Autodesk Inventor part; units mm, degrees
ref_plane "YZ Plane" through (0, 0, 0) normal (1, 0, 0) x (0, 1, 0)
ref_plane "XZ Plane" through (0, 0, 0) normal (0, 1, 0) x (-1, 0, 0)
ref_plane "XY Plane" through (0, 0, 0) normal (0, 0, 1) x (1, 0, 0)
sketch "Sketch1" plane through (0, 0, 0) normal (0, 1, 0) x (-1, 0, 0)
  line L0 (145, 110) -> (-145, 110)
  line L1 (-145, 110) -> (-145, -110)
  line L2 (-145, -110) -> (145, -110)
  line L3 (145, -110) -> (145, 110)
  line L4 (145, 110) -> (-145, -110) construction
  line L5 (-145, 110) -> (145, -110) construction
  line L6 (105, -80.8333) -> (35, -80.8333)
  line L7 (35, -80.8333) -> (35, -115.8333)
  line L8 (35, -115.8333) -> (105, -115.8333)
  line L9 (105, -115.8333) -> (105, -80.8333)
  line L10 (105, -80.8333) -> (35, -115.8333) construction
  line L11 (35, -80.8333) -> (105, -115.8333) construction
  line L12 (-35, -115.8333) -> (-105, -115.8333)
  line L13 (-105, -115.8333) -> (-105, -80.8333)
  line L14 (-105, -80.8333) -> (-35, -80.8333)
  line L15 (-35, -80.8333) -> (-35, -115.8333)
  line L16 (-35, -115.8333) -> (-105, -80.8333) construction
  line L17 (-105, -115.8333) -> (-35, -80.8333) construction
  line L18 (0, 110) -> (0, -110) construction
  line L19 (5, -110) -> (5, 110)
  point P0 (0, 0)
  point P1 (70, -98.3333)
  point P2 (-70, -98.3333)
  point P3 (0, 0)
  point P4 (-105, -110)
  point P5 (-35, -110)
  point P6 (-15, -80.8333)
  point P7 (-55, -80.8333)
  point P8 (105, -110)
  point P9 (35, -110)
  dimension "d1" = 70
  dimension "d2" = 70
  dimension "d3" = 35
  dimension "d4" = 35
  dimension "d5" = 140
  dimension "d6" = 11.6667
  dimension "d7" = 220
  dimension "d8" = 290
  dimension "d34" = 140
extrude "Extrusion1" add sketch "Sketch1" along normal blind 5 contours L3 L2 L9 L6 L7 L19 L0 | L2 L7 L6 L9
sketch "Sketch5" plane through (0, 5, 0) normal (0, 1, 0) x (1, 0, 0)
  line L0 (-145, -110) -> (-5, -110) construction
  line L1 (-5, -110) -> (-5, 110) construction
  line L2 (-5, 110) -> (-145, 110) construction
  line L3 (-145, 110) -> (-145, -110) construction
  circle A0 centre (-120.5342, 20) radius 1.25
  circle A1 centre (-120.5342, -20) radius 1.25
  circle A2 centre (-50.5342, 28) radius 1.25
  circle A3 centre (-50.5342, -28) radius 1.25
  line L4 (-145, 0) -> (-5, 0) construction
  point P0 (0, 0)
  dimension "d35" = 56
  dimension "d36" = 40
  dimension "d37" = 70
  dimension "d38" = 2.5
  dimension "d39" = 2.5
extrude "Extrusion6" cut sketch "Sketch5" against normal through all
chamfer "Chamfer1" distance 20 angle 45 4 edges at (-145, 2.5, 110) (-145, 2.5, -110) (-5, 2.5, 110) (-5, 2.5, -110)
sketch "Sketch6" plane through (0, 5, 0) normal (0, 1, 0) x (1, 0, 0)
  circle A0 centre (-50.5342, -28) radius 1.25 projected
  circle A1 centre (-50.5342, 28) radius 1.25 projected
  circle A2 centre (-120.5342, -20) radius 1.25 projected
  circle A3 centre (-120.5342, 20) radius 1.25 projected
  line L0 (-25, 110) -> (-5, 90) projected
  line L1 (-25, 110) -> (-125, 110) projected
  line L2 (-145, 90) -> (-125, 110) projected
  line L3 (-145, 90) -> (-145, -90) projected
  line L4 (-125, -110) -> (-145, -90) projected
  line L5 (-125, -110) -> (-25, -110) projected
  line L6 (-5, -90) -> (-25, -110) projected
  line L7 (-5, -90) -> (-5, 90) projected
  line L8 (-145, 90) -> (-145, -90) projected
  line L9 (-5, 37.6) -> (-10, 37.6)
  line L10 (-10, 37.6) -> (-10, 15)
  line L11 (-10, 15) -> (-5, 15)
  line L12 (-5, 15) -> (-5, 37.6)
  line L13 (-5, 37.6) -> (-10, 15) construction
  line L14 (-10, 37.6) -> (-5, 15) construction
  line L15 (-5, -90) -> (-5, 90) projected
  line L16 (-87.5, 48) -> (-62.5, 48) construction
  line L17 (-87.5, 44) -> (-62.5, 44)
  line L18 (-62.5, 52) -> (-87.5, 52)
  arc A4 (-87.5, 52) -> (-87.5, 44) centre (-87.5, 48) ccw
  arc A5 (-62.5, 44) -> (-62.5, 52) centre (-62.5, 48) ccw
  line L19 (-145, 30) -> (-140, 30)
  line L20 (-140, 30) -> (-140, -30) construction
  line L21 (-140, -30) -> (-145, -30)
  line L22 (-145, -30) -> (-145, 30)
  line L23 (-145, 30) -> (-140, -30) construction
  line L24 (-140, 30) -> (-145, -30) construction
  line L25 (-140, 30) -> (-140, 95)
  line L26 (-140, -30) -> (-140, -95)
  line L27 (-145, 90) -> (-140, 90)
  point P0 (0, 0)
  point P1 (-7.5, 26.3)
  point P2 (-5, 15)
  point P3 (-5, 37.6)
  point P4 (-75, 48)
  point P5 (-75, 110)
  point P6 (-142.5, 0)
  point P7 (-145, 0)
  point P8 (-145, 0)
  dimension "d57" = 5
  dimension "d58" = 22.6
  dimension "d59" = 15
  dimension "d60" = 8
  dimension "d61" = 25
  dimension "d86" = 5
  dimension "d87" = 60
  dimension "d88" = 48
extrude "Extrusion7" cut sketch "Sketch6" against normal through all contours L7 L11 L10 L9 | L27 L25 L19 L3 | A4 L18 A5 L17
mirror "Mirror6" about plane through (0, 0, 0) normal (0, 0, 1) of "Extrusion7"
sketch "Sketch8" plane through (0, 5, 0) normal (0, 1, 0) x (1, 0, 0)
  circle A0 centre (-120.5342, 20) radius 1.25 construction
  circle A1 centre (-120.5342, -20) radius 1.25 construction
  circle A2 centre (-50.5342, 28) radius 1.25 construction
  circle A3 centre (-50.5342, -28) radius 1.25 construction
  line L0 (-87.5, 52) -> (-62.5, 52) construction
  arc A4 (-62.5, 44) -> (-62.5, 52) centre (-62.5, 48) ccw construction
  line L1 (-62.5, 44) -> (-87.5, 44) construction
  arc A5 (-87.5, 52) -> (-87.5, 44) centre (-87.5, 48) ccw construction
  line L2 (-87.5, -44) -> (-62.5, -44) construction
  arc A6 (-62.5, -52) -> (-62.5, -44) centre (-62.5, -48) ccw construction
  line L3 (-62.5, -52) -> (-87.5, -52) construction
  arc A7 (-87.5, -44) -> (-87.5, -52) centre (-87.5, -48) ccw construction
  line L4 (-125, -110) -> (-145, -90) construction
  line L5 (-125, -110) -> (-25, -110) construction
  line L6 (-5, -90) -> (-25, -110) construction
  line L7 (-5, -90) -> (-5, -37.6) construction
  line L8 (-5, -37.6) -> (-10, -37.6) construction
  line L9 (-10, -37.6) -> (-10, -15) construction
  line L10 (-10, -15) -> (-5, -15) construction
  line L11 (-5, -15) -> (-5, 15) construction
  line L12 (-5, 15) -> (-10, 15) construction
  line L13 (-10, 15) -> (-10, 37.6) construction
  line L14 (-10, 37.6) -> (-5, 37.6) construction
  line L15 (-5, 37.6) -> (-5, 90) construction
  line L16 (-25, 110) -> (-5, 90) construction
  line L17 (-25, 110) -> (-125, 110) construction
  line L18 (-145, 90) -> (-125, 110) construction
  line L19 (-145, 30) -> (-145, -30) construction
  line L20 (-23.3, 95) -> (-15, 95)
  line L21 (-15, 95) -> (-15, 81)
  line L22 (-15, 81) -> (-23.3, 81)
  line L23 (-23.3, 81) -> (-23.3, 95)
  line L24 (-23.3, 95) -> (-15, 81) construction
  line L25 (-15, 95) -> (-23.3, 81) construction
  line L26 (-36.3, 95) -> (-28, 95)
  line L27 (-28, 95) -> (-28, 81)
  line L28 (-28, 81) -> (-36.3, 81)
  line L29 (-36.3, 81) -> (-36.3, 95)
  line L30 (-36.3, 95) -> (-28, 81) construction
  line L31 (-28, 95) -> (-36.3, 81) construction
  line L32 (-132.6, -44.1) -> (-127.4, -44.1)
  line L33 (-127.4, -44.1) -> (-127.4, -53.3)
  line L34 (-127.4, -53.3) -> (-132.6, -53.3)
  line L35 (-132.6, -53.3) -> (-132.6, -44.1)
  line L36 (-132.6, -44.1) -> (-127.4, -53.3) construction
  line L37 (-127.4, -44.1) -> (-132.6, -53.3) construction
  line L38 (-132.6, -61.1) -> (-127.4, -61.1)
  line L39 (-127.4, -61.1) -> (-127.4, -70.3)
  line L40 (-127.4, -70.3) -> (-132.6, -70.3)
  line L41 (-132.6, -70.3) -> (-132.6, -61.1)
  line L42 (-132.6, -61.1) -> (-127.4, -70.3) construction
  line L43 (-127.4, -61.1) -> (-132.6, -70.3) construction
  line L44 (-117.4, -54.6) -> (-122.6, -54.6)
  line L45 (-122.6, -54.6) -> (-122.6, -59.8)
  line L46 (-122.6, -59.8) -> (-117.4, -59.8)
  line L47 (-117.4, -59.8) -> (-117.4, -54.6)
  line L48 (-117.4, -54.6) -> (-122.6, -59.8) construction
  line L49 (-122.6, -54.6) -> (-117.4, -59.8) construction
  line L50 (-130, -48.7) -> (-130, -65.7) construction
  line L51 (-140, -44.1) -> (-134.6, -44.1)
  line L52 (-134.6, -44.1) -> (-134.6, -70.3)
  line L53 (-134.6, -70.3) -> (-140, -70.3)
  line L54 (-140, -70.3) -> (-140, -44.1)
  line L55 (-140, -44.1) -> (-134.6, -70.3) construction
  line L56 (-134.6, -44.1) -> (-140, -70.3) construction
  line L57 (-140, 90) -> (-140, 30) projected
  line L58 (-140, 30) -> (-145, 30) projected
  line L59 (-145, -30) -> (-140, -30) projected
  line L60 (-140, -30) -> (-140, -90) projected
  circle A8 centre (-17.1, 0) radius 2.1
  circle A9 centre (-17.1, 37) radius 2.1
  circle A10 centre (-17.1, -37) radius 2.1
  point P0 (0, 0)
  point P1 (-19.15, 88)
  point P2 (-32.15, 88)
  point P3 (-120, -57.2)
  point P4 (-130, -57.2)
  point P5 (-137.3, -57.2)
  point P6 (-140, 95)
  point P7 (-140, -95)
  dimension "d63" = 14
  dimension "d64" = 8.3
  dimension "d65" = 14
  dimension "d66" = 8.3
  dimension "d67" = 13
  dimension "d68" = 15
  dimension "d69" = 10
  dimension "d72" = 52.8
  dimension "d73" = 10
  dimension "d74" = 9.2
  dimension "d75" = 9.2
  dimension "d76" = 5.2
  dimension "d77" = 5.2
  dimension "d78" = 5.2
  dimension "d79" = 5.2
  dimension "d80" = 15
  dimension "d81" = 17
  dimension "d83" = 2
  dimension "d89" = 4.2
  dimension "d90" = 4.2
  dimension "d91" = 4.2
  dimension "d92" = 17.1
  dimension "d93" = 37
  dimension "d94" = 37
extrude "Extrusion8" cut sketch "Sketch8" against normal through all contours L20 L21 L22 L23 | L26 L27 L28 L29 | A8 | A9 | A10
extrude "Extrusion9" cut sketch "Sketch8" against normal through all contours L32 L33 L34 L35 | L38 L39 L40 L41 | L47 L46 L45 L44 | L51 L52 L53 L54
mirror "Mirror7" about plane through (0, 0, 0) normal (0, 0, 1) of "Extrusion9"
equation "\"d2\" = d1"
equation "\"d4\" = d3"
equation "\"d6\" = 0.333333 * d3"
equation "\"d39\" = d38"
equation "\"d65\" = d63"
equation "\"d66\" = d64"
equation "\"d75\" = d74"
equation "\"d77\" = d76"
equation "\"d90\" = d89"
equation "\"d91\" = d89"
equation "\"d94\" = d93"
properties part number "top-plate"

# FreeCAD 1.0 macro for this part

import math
import FreeCAD as App
import Part
import Sketcher


def edges_at(feature, points):
    """Names of the edges that pass closest to the given points."""
    edges = feature.Shape.Edges
    near = lambda p: min(range(len(edges)), key=lambda i: edges[i].distToShape(Part.Vertex(*p))[0])
    return sorted({f"Edge{near(p) + 1}" for p in points})


def add_polygon(sketch, points):
    """Adds a closed chain of lines whose ends are joined by coincident constraints."""
    first, n = sketch.GeometryCount, len(points)
    for a, b in zip(points, points[1:] + points[:1]):
        sketch.addGeometry(Part.LineSegment(App.Vector(*a, 0), App.Vector(*b, 0)), False)
    for i in range(n):
        sketch.addConstraint(Sketcher.Constraint("Coincident", first + i, 2, first + (i + 1) % n, 1))

doc = App.newDocument("Part")
body = doc.addObject("PartDesign::Body", "Body")

# Sketch on XZ plane
sketch1 = body.newObject("Sketcher::SketchObject", "Sketch")
sketch1.AttachmentSupport = (doc.getObject("XZ_Plane"), [""])
sketch1.MapMode = "FlatFace"
add_polygon(sketch1, [(-145, -110), (-145, 110), (-5, 110), (-5, -110)])  # lines 0-3
sketch1.addConstraint([
    Sketcher.Constraint("Vertical", 0),
    Sketcher.Constraint("Horizontal", 1),
    Sketcher.Constraint("Vertical", 2),
    Sketcher.Constraint("Horizontal", 3),
    Sketcher.Constraint("DistanceX", 1, 1, 1, 2, 140.0),
    Sketcher.Constraint("DistanceY", 0, 1, 0, 2, 220.0),
    Sketcher.Constraint("DistanceX", 0, 2, -1, 1, 145.0),
    Sketcher.Constraint("DistanceY", -1, 1, 0, 2, 110.0),
])
pad1 = body.newObject("PartDesign::Pad", "Pad")
pad1.Profile = sketch1
pad1.Length = 5
pad1.Reversed = True

# Sketch on XZ plane
sketch2 = body.newObject("Sketcher::SketchObject", "Sketch001")
sketch2.AttachmentSupport = (doc.getObject("XZ_Plane"), [""])
sketch2.MapMode = "FlatFace"
sketch2.AttachmentOffset = App.Placement(App.Vector(0, 0, -5), App.Rotation())
sketch2.addGeometry([
    Part.Circle(App.Vector(-120.5, -20, 0), App.Vector(0, 0, 1), 1.2),
    Part.Circle(App.Vector(-120.5, 20, 0), App.Vector(0, 0, 1), 1.2),
    Part.Circle(App.Vector(-50.5, -28, 0), App.Vector(0, 0, 1), 1.2),
    Part.Circle(App.Vector(-50.5, 28, 0), App.Vector(0, 0, 1), 1.2),
], False)
sketch2.addConstraint([
    Sketcher.Constraint("Equal", 0, 1),
    Sketcher.Constraint("Equal", 1, 2),
    Sketcher.Constraint("Equal", 2, 3),
    Sketcher.Constraint("Symmetric", 0, 3, 1, 3, -1),
    Sketcher.Constraint("Symmetric", 2, 3, 3, 3, -1),
    Sketcher.Constraint("Diameter", 0, 2.5),
    Sketcher.Constraint("DistanceY", 0, 3, 1, 3, 40.0),
    Sketcher.Constraint("DistanceX", 0, 3, 2, 3, 70.0),
    Sketcher.Constraint("DistanceY", 2, 3, 3, 3, 56.0),
    Sketcher.Constraint("DistanceX", 0, 3, -1, 1, 120.5342),
])
pocket1 = body.newObject("PartDesign::Pocket", "Pocket")
pocket1.Profile = sketch2
pocket1.Type = "ThroughAll"
pocket1.Reversed = True
doc.recompute()

chamfer = body.newObject("PartDesign::Chamfer", "Chamfer")
chamfer.Base = (pocket1, edges_at(pocket1, [
    (-145, 2.5, 110),
    (-145, 2.5, -110),
    (-5, 2.5, 110),
    (-5, 2.5, -110),
]))
chamfer.Size = 20

# Sketch on XZ plane
sketch3 = body.newObject("Sketcher::SketchObject", "Sketch002")
sketch3.AttachmentSupport = (doc.getObject("XZ_Plane"), [""])
sketch3.MapMode = "FlatFace"
sketch3.AttachmentOffset = App.Placement(App.Vector(0, 0, -5), App.Rotation())
add_polygon(sketch3, [(-5, -15), (-5, -37.6), (-10, -37.6), (-10, -15)])  # lines 0-3
add_polygon(sketch3, [(-140, -90), (-145, -90), (-145, -30), (-140, -30)])  # lines 4-7
sketch3.addGeometry(Part.ArcOfCircle(Part.Circle(App.Vector(-87.5, -48, 0), App.Vector(0, 0, 1), 4), math.radians(90), math.radians(270)), False)  # 8
sketch3.addGeometry(Part.LineSegment(App.Vector(-87.5, -44, 0), App.Vector(-62.5, -44, 0)), False)  # 9
sketch3.addGeometry(Part.ArcOfCircle(Part.Circle(App.Vector(-62.5, -48, 0), App.Vector(0, 0, 1), 4), math.radians(-90), math.radians(90)), False)  # 10
sketch3.addGeometry(Part.LineSegment(App.Vector(-62.5, -52, 0), App.Vector(-87.5, -52, 0)), False)  # 11
sketch3.addConstraint([
    Sketcher.Constraint("Tangent", 8, 1, 9, 1),
    Sketcher.Constraint("Tangent", 9, 2, 10, 2),
    Sketcher.Constraint("Tangent", 10, 1, 11, 1),
    Sketcher.Constraint("Tangent", 11, 2, 8, 2),
    Sketcher.Constraint("Vertical", 0),
    Sketcher.Constraint("Horizontal", 1),
    Sketcher.Constraint("Vertical", 2),
    Sketcher.Constraint("Horizontal", 3),
    Sketcher.Constraint("Horizontal", 4),
    Sketcher.Constraint("Vertical", 5),
    Sketcher.Constraint("Horizontal", 6),
    Sketcher.Constraint("Vertical", 7),
    Sketcher.Constraint("Horizontal", 9),
    Sketcher.Constraint("Horizontal", 11),
    Sketcher.Constraint("Equal", 3, 4),
    Sketcher.Constraint("Radius", 8, 4.0),
    Sketcher.Constraint("DistanceX", 1, 2, 1, 1, 5.0),
    Sketcher.Constraint("DistanceX", 9, 1, 9, 2, 25.0),
    Sketcher.Constraint("DistanceY", 5, 1, 5, 2, 60.0),
    Sketcher.Constraint("DistanceY", 0, 2, 0, 1, 22.6),
    Sketcher.Constraint("DistanceY", 8, 3, -1, 1, 48.0),
    Sketcher.Constraint("DistanceX", 0, 2, -1, 1, 5.0),
    Sketcher.Constraint("DistanceY", 2, 2, -1, 1, 15.0),
    Sketcher.Constraint("DistanceY", 5, 2, 2, 2, 15.0),
    Sketcher.Constraint("DistanceX", 4, 2, -1, 1, 145.0),
    Sketcher.Constraint("DistanceX", 8, 3, -1, 1, 87.5),
])
pocket2 = body.newObject("PartDesign::Pocket", "Pocket001")
pocket2.Profile = sketch3
pocket2.Type = "ThroughAll"
pocket2.Reversed = True
doc.recompute()

mirrored = body.newObject("PartDesign::Mirrored", "Mirrored")
mirrored.Originals = [pocket2]
mirrored.MirrorPlane = (doc.getObject("XY_Plane"), [""])
body.Tip = mirrored

# Sketch on XZ plane
sketch4 = body.newObject("Sketcher::SketchObject", "Sketch003")
sketch4.AttachmentSupport = (doc.getObject("XZ_Plane"), [""])
sketch4.MapMode = "FlatFace"
sketch4.AttachmentOffset = App.Placement(App.Vector(0, 0, -5), App.Rotation())
add_polygon(sketch4, [(-15, -95), (-23.3, -95), (-23.3, -81), (-15, -81)])  # lines 0-3
add_polygon(sketch4, [(-28, -95), (-36.3, -95), (-36.3, -81), (-28, -81)])  # lines 4-7
sketch4.addGeometry(Part.Circle(App.Vector(-17.1, 0, 0), App.Vector(0, 0, 1), 2.1), False)  # 8
sketch4.addGeometry(Part.Circle(App.Vector(-17.1, -37, 0), App.Vector(0, 0, 1), 2.1), False)  # 9
sketch4.addGeometry(Part.Circle(App.Vector(-17.1, 37, 0), App.Vector(0, 0, 1), 2.1), False)  # 10
sketch4.addConstraint([
    Sketcher.Constraint("Horizontal", 0),
    Sketcher.Constraint("Vertical", 1),
    Sketcher.Constraint("Horizontal", 2),
    Sketcher.Constraint("Vertical", 3),
    Sketcher.Constraint("Horizontal", 4),
    Sketcher.Constraint("Vertical", 5),
    Sketcher.Constraint("Horizontal", 6),
    Sketcher.Constraint("Vertical", 7),
    Sketcher.Constraint("Equal", 8, 9),
    Sketcher.Constraint("Equal", 9, 10),
    Sketcher.Constraint("Symmetric", 9, 3, 10, 3, -1),
    Sketcher.Constraint("PointOnObject", 8, 3, -1),
    Sketcher.Constraint("Horizontal", 3, 2, 4, 2),
    Sketcher.Constraint("Horizontal", 2, 2, 5, 2),
    Sketcher.Constraint("Vertical", 8, 3, 9, 3),
    Sketcher.Constraint("Equal", 2, 4),
    Sketcher.Constraint("Diameter", 8, 4.2),
    Sketcher.Constraint("DistanceY", 1, 1, 1, 2, 14.0),
    Sketcher.Constraint("DistanceX", 0, 2, 0, 1, 8.3),
    Sketcher.Constraint("DistanceY", 9, 3, -1, 1, 37.0),
    Sketcher.Constraint("DistanceX", 2, 2, -1, 1, 15.0),
    Sketcher.Constraint("DistanceX", 4, 2, 0, 2, 13.0),
    Sketcher.Constraint("DistanceX", 8, 3, -1, 1, 17.1),
    Sketcher.Constraint("DistanceY", 0, 2, -1, 1, 95.0),
])
pocket3 = body.newObject("PartDesign::Pocket", "Pocket002")
pocket3.Profile = sketch4
pocket3.Type = "ThroughAll"
pocket3.Reversed = True

# Sketch on XZ plane
sketch5 = body.newObject("Sketcher::SketchObject", "Sketch004")
sketch5.AttachmentSupport = (doc.getObject("XZ_Plane"), [""])
sketch5.MapMode = "FlatFace"
sketch5.AttachmentOffset = App.Placement(App.Vector(0, 0, -5), App.Rotation())
add_polygon(sketch5, [(-127, 44), (-133, 44), (-133, 53), (-127, 53)])  # lines 0-3
add_polygon(sketch5, [(-127, 61), (-133, 61), (-133, 70), (-127, 70)])  # lines 4-7
add_polygon(sketch5, [(-117, 60), (-117, 55), (-123, 55), (-123, 60)])  # lines 8-11
add_polygon(sketch5, [(-135, 44), (-140, 44), (-140, 70), (-135, 70)])  # lines 12-15
sketch5.addConstraint([
    Sketcher.Constraint("Horizontal", 0),
    Sketcher.Constraint("Vertical", 1),
    Sketcher.Constraint("Horizontal", 2),
    Sketcher.Constraint("Vertical", 3),
    Sketcher.Constraint("Horizontal", 4),
    Sketcher.Constraint("Vertical", 5),
    Sketcher.Constraint("Horizontal", 6),
    Sketcher.Constraint("Vertical", 7),
    Sketcher.Constraint("Vertical", 8),
    Sketcher.Constraint("Horizontal", 9),
    Sketcher.Constraint("Vertical", 10),
    Sketcher.Constraint("Horizontal", 11),
    Sketcher.Constraint("Horizontal", 12),
    Sketcher.Constraint("Vertical", 13),
    Sketcher.Constraint("Horizontal", 14),
    Sketcher.Constraint("Vertical", 15),
    Sketcher.Constraint("Horizontal", 3, 2, 12, 2),
    Sketcher.Constraint("Horizontal", 6, 2, 13, 2),
    Sketcher.Constraint("Vertical", 1, 2, 4, 2),
    Sketcher.Constraint("Vertical", 3, 2, 6, 2),
    Sketcher.Constraint("Equal", 6, 9),
    Sketcher.Constraint("Equal", 3, 5),
    Sketcher.Constraint("Equal", 11, 8),
    Sketcher.Constraint("DistanceX", 0, 2, 0, 1, 5.2),
    Sketcher.Constraint("DistanceY", 1, 1, 1, 2, 9.2),
    Sketcher.Constraint("DistanceY", 0, 2, 4, 2, 17.0),
    Sketcher.Constraint("DistanceX", 2, 2, 8, 2, 10.0),
    Sketcher.Constraint("DistanceX", 14, 2, 5, 2, 2.0),
    Sketcher.Constraint("DistanceX", 12, 2, 12, 1, 5.4),
    Sketcher.Constraint("DistanceX", 12, 2, -1, 1, 140.0),
    Sketcher.Constraint("DistanceY", -1, 1, 0, 2, 44.1),
    Sketcher.Constraint("DistanceY", -1, 1, 8, 2, 54.6),
])
pocket4 = body.newObject("PartDesign::Pocket", "Pocket003")
pocket4.Profile = sketch5
pocket4.Type = "ThroughAll"
pocket4.Reversed = True
doc.recompute()

mirrored2 = body.newObject("PartDesign::Mirrored", "Mirrored001")
mirrored2.Originals = [pocket4]
mirrored2.MirrorPlane = (doc.getObject("XY_Plane"), [""])
body.Tip = mirrored2

doc.recompute()
